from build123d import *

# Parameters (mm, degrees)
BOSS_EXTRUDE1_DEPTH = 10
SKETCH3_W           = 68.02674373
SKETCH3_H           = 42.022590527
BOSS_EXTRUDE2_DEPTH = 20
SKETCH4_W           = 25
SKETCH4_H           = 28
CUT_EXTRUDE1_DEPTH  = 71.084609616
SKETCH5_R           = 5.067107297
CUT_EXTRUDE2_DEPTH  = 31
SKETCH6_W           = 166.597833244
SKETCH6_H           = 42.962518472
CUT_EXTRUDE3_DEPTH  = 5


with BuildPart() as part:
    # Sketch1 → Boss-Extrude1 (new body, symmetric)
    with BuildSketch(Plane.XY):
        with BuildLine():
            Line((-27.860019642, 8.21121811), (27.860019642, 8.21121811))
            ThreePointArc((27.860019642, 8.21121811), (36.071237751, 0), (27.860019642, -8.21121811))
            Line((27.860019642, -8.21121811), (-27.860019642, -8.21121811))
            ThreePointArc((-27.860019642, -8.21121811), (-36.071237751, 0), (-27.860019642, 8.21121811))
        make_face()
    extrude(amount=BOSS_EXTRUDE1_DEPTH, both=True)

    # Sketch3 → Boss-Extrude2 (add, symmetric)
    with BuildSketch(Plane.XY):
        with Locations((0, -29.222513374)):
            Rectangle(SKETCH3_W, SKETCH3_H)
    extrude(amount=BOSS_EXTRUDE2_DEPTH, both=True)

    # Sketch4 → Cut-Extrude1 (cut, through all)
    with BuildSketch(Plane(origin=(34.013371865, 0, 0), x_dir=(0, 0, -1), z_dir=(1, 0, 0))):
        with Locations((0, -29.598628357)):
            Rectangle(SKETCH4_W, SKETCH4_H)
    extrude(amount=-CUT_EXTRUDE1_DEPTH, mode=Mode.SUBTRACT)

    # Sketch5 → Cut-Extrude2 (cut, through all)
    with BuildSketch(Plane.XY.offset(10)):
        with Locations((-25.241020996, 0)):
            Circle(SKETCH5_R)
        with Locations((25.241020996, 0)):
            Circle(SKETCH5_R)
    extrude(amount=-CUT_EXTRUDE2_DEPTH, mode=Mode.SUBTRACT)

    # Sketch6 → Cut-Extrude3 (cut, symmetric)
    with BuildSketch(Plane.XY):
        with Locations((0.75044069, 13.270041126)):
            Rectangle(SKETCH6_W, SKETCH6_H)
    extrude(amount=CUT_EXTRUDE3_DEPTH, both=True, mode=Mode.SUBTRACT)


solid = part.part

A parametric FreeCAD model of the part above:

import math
import FreeCAD as App
import Part
import Sketcher
from FreeCAD import Vector
Q = App.Units.Quantity


def add_polygon(sketch, points):
    """Adds a closed chain of lines whose ends are joined by coincident constraints."""
    first, n = sketch.GeometryCount, len(points)
    for a, b in zip(points, points[1:] + points[:1]):
        sketch.addGeometry(Part.LineSegment(App.Vector(*a, 0), App.Vector(*b, 0)), False)
    for i in range(n):
        sketch.addConstraint(Sketcher.Constraint("Coincident", first + i, 2, first + (i + 1) % n, 1))

doc = App.newDocument("Part")
params = doc.addObject("Spreadsheet::Sheet", "Params")
for row, (alias, value) in enumerate([
    ("pad1_length", "20 mm"),
    ("pad2_length", "40 mm"),
    ("sketch3_width", "28 mm"),
    ("sketch3_height", "25 mm"),
    ("pocket3_length", "10 mm"),
], start=1):
    params.set(f"A{row}", alias)
    params.set(f"B{row}", "=" + value)
    params.setAlias(f"B{row}", alias)

body = doc.addObject("PartDesign::Body", "Body")

# Sketch on XY plane
sketch1 = doc.addObject("Sketcher::SketchObject", "Sketch")
body.addObject(sketch1)
sketch1.AttachmentSupport = (doc.XY_Plane, [""])
sketch1.MapMode = "FlatFace"
sketch1.addGeometry([
    Part.LineSegment(Vector(28, 8, 0), Vector(-28, 8, 0)),
    Part.ArcOfCircle(Part.Circle(Vector(-28, 0, 0), Vector(0, 0, 1), 8), math.radians(90), math.radians(270)),
    Part.LineSegment(Vector(-28, -8, 0), Vector(28, -8, 0)),
    Part.ArcOfCircle(Part.Circle(Vector(28, 0, 0), Vector(0, 0, 1), 8), math.radians(-90), math.radians(90)),
], False)
sketch1.addConstraint([
    Sketcher.Constraint("Tangent", 0, 2, 1, 1),
    Sketcher.Constraint("Tangent", 1, 2, 2, 1),
    Sketcher.Constraint("Tangent", 2, 2, 3, 1),
    Sketcher.Constraint("Tangent", 3, 2, 0, 1),
    Sketcher.Constraint("Horizontal", 0),
    Sketcher.Constraint("Horizontal", 2),
    Sketcher.Constraint("Symmetric", 1, 3, 3, 3, -1, 1),
    Sketcher.Constraint("Radius", 1, Q("8.211218 mm")),
    Sketcher.Constraint("DistanceX", 0, 2, 0, 1, Q("55.720039 mm")),
])
pad1 = doc.addObject("PartDesign::Pad", "Pad")
body.addObject(pad1)
pad1.Profile = sketch1
pad1.setExpression("Length", "Params.pad1_length")
pad1.Midplane = True

# Sketch on XY plane
sketch2 = doc.addObject("Sketcher::SketchObject", "Sketch001")
body.addObject(sketch2)
sketch2.AttachmentSupport = (doc.XY_Plane, [""])
sketch2.MapMode = "FlatFace"
add_polygon(sketch2, [(-34, -8), (-34, -50), (34, -50), (34, -8)])  # lines 0-3
sketch2.addConstraint([
    Sketcher.Constraint("Vertical", 0),
    Sketcher.Constraint("Horizontal", 1),
    Sketcher.Constraint("Vertical", 2),
    Sketcher.Constraint("Horizontal", 3),
    Sketcher.Constraint("DistanceY", 0, 2, 0, 1, Q("42.022591 mm")),
    Sketcher.Constraint("DistanceX", 1, 1, 1, 2, Q("68.026744 mm")),
    Sketcher.Constraint("DistanceX", 0, 2, -1, 1, Q("34.013372 mm")),
    Sketcher.Constraint("DistanceY", 0, 2, -1, 1, Q("50.233809 mm")),
])
pad2 = doc.addObject("PartDesign::Pad", "Pad001")
body.addObject(pad2)
pad2.Profile = sketch2
pad2.setExpression("Length", "Params.pad2_length")
pad2.Midplane = True

# Sketch on YZ plane
sketch3 = doc.addObject("Sketcher::SketchObject", "Sketch002")
body.addObject(sketch3)
sketch3.AttachmentSupport = (doc.YZ_Plane, [""])
sketch3.MapMode = "FlatFace"
sketch3.AttachmentOffset = App.Placement(Vector(0, 0, 34.013372), App.Rotation())
add_polygon(sketch3, [(-16, 12), (-44, 12), (-44, -12), (-16, -12)])  # lines 0-3
sketch3.addConstraint([
    Sketcher.Constraint("Horizontal", 0),
    Sketcher.Constraint("Vertical", 1),
    Sketcher.Constraint("Horizontal", 2),
    Sketcher.Constraint("Vertical", 3),
    Sketcher.Constraint("DistanceX", 0, 2, 0, 1, Q("28 mm")),
    Sketcher.Constraint("DistanceY", 1, 2, 1, 1, Q("25 mm")),
    Sketcher.Constraint("DistanceY", -1, 1, 0, 2, Q("12.5 mm")),
    Sketcher.Constraint("DistanceX", 0, 2, -1, 1, Q("43.598628 mm")),
])
sketch3.setExpression("Constraints[8]", "Params.sketch3_width")
sketch3.setExpression("Constraints[9]", "Params.sketch3_height")
pocket1 = doc.addObject("PartDesign::Pocket", "Pocket")
body.addObject(pocket1)
pocket1.Profile = sketch3
pocket1.Type = "ThroughAll"

# Sketch on XY plane
sketch4 = doc.addObject("Sketcher::SketchObject", "Sketch003")
body.addObject(sketch4)
sketch4.AttachmentSupport = (doc.XY_Plane, [""])
sketch4.MapMode = "FlatFace"
sketch4.AttachmentOffset = App.Placement(Vector(0, 0, 10), App.Rotation())
sketch4.addGeometry([
    Part.Circle(Vector(-25, 0, 0), Vector(0, 0, 1), 5),
    Part.Circle(Vector(25, 0, 0), Vector(0, 0, 1), 5),
], False)
sketch4.addConstraint([
    Sketcher.Constraint("Equal", 0, 1),
    Sketcher.Constraint("Symmetric", 0, 3, 1, 3, -1, 1),
    Sketcher.Constraint("PointOnObject", 0, 3, -1),
    Sketcher.Constraint("Diameter", 0, Q("10.134215 mm")),
    Sketcher.Constraint("DistanceX", 0, 3, -1, 1, Q("25.241021 mm")),
])
pocket2 = doc.addObject("PartDesign::Pocket", "Pocket001")
body.addObject(pocket2)
pocket2.Profile = sketch4
pocket2.Type = "ThroughAll"

# Sketch on XY plane
sketch5 = doc.addObject("Sketcher::SketchObject", "Sketch004")
body.addObject(sketch5)
sketch5.AttachmentSupport = (doc.XY_Plane, [""])
sketch5.MapMode = "FlatFace"
add_polygon(sketch5, [(-83, 35), (-83, -8), (84, -8), (84, 35)])  # lines 0-3
sketch5.addConstraint([
    Sketcher.Constraint("Vertical", 0),
    Sketcher.Constraint("Horizontal", 1),
    Sketcher.Constraint("Vertical", 2),
    Sketcher.Constraint("Horizontal", 3),
    Sketcher.Constraint("DistanceY", 0, 2, 0, 1, Q("42.962518 mm")),
    Sketcher.Constraint("DistanceY", -1, 1, 2, 2, Q("34.7513 mm")),
    Sketcher.Constraint("DistanceX", 1, 1, 1, 2, Q("166.597833 mm")),
    Sketcher.Constraint("DistanceX", 0, 2, -1, 1, Q("82.548476 mm")),
])
pocket3 = doc.addObject("PartDesign::Pocket", "Pocket002")
body.addObject(pocket3)
pocket3.Profile = sketch5
pocket3.setExpression("Length", "Params.pocket3_length")
pocket3.Midplane = True

doc.recompute()
